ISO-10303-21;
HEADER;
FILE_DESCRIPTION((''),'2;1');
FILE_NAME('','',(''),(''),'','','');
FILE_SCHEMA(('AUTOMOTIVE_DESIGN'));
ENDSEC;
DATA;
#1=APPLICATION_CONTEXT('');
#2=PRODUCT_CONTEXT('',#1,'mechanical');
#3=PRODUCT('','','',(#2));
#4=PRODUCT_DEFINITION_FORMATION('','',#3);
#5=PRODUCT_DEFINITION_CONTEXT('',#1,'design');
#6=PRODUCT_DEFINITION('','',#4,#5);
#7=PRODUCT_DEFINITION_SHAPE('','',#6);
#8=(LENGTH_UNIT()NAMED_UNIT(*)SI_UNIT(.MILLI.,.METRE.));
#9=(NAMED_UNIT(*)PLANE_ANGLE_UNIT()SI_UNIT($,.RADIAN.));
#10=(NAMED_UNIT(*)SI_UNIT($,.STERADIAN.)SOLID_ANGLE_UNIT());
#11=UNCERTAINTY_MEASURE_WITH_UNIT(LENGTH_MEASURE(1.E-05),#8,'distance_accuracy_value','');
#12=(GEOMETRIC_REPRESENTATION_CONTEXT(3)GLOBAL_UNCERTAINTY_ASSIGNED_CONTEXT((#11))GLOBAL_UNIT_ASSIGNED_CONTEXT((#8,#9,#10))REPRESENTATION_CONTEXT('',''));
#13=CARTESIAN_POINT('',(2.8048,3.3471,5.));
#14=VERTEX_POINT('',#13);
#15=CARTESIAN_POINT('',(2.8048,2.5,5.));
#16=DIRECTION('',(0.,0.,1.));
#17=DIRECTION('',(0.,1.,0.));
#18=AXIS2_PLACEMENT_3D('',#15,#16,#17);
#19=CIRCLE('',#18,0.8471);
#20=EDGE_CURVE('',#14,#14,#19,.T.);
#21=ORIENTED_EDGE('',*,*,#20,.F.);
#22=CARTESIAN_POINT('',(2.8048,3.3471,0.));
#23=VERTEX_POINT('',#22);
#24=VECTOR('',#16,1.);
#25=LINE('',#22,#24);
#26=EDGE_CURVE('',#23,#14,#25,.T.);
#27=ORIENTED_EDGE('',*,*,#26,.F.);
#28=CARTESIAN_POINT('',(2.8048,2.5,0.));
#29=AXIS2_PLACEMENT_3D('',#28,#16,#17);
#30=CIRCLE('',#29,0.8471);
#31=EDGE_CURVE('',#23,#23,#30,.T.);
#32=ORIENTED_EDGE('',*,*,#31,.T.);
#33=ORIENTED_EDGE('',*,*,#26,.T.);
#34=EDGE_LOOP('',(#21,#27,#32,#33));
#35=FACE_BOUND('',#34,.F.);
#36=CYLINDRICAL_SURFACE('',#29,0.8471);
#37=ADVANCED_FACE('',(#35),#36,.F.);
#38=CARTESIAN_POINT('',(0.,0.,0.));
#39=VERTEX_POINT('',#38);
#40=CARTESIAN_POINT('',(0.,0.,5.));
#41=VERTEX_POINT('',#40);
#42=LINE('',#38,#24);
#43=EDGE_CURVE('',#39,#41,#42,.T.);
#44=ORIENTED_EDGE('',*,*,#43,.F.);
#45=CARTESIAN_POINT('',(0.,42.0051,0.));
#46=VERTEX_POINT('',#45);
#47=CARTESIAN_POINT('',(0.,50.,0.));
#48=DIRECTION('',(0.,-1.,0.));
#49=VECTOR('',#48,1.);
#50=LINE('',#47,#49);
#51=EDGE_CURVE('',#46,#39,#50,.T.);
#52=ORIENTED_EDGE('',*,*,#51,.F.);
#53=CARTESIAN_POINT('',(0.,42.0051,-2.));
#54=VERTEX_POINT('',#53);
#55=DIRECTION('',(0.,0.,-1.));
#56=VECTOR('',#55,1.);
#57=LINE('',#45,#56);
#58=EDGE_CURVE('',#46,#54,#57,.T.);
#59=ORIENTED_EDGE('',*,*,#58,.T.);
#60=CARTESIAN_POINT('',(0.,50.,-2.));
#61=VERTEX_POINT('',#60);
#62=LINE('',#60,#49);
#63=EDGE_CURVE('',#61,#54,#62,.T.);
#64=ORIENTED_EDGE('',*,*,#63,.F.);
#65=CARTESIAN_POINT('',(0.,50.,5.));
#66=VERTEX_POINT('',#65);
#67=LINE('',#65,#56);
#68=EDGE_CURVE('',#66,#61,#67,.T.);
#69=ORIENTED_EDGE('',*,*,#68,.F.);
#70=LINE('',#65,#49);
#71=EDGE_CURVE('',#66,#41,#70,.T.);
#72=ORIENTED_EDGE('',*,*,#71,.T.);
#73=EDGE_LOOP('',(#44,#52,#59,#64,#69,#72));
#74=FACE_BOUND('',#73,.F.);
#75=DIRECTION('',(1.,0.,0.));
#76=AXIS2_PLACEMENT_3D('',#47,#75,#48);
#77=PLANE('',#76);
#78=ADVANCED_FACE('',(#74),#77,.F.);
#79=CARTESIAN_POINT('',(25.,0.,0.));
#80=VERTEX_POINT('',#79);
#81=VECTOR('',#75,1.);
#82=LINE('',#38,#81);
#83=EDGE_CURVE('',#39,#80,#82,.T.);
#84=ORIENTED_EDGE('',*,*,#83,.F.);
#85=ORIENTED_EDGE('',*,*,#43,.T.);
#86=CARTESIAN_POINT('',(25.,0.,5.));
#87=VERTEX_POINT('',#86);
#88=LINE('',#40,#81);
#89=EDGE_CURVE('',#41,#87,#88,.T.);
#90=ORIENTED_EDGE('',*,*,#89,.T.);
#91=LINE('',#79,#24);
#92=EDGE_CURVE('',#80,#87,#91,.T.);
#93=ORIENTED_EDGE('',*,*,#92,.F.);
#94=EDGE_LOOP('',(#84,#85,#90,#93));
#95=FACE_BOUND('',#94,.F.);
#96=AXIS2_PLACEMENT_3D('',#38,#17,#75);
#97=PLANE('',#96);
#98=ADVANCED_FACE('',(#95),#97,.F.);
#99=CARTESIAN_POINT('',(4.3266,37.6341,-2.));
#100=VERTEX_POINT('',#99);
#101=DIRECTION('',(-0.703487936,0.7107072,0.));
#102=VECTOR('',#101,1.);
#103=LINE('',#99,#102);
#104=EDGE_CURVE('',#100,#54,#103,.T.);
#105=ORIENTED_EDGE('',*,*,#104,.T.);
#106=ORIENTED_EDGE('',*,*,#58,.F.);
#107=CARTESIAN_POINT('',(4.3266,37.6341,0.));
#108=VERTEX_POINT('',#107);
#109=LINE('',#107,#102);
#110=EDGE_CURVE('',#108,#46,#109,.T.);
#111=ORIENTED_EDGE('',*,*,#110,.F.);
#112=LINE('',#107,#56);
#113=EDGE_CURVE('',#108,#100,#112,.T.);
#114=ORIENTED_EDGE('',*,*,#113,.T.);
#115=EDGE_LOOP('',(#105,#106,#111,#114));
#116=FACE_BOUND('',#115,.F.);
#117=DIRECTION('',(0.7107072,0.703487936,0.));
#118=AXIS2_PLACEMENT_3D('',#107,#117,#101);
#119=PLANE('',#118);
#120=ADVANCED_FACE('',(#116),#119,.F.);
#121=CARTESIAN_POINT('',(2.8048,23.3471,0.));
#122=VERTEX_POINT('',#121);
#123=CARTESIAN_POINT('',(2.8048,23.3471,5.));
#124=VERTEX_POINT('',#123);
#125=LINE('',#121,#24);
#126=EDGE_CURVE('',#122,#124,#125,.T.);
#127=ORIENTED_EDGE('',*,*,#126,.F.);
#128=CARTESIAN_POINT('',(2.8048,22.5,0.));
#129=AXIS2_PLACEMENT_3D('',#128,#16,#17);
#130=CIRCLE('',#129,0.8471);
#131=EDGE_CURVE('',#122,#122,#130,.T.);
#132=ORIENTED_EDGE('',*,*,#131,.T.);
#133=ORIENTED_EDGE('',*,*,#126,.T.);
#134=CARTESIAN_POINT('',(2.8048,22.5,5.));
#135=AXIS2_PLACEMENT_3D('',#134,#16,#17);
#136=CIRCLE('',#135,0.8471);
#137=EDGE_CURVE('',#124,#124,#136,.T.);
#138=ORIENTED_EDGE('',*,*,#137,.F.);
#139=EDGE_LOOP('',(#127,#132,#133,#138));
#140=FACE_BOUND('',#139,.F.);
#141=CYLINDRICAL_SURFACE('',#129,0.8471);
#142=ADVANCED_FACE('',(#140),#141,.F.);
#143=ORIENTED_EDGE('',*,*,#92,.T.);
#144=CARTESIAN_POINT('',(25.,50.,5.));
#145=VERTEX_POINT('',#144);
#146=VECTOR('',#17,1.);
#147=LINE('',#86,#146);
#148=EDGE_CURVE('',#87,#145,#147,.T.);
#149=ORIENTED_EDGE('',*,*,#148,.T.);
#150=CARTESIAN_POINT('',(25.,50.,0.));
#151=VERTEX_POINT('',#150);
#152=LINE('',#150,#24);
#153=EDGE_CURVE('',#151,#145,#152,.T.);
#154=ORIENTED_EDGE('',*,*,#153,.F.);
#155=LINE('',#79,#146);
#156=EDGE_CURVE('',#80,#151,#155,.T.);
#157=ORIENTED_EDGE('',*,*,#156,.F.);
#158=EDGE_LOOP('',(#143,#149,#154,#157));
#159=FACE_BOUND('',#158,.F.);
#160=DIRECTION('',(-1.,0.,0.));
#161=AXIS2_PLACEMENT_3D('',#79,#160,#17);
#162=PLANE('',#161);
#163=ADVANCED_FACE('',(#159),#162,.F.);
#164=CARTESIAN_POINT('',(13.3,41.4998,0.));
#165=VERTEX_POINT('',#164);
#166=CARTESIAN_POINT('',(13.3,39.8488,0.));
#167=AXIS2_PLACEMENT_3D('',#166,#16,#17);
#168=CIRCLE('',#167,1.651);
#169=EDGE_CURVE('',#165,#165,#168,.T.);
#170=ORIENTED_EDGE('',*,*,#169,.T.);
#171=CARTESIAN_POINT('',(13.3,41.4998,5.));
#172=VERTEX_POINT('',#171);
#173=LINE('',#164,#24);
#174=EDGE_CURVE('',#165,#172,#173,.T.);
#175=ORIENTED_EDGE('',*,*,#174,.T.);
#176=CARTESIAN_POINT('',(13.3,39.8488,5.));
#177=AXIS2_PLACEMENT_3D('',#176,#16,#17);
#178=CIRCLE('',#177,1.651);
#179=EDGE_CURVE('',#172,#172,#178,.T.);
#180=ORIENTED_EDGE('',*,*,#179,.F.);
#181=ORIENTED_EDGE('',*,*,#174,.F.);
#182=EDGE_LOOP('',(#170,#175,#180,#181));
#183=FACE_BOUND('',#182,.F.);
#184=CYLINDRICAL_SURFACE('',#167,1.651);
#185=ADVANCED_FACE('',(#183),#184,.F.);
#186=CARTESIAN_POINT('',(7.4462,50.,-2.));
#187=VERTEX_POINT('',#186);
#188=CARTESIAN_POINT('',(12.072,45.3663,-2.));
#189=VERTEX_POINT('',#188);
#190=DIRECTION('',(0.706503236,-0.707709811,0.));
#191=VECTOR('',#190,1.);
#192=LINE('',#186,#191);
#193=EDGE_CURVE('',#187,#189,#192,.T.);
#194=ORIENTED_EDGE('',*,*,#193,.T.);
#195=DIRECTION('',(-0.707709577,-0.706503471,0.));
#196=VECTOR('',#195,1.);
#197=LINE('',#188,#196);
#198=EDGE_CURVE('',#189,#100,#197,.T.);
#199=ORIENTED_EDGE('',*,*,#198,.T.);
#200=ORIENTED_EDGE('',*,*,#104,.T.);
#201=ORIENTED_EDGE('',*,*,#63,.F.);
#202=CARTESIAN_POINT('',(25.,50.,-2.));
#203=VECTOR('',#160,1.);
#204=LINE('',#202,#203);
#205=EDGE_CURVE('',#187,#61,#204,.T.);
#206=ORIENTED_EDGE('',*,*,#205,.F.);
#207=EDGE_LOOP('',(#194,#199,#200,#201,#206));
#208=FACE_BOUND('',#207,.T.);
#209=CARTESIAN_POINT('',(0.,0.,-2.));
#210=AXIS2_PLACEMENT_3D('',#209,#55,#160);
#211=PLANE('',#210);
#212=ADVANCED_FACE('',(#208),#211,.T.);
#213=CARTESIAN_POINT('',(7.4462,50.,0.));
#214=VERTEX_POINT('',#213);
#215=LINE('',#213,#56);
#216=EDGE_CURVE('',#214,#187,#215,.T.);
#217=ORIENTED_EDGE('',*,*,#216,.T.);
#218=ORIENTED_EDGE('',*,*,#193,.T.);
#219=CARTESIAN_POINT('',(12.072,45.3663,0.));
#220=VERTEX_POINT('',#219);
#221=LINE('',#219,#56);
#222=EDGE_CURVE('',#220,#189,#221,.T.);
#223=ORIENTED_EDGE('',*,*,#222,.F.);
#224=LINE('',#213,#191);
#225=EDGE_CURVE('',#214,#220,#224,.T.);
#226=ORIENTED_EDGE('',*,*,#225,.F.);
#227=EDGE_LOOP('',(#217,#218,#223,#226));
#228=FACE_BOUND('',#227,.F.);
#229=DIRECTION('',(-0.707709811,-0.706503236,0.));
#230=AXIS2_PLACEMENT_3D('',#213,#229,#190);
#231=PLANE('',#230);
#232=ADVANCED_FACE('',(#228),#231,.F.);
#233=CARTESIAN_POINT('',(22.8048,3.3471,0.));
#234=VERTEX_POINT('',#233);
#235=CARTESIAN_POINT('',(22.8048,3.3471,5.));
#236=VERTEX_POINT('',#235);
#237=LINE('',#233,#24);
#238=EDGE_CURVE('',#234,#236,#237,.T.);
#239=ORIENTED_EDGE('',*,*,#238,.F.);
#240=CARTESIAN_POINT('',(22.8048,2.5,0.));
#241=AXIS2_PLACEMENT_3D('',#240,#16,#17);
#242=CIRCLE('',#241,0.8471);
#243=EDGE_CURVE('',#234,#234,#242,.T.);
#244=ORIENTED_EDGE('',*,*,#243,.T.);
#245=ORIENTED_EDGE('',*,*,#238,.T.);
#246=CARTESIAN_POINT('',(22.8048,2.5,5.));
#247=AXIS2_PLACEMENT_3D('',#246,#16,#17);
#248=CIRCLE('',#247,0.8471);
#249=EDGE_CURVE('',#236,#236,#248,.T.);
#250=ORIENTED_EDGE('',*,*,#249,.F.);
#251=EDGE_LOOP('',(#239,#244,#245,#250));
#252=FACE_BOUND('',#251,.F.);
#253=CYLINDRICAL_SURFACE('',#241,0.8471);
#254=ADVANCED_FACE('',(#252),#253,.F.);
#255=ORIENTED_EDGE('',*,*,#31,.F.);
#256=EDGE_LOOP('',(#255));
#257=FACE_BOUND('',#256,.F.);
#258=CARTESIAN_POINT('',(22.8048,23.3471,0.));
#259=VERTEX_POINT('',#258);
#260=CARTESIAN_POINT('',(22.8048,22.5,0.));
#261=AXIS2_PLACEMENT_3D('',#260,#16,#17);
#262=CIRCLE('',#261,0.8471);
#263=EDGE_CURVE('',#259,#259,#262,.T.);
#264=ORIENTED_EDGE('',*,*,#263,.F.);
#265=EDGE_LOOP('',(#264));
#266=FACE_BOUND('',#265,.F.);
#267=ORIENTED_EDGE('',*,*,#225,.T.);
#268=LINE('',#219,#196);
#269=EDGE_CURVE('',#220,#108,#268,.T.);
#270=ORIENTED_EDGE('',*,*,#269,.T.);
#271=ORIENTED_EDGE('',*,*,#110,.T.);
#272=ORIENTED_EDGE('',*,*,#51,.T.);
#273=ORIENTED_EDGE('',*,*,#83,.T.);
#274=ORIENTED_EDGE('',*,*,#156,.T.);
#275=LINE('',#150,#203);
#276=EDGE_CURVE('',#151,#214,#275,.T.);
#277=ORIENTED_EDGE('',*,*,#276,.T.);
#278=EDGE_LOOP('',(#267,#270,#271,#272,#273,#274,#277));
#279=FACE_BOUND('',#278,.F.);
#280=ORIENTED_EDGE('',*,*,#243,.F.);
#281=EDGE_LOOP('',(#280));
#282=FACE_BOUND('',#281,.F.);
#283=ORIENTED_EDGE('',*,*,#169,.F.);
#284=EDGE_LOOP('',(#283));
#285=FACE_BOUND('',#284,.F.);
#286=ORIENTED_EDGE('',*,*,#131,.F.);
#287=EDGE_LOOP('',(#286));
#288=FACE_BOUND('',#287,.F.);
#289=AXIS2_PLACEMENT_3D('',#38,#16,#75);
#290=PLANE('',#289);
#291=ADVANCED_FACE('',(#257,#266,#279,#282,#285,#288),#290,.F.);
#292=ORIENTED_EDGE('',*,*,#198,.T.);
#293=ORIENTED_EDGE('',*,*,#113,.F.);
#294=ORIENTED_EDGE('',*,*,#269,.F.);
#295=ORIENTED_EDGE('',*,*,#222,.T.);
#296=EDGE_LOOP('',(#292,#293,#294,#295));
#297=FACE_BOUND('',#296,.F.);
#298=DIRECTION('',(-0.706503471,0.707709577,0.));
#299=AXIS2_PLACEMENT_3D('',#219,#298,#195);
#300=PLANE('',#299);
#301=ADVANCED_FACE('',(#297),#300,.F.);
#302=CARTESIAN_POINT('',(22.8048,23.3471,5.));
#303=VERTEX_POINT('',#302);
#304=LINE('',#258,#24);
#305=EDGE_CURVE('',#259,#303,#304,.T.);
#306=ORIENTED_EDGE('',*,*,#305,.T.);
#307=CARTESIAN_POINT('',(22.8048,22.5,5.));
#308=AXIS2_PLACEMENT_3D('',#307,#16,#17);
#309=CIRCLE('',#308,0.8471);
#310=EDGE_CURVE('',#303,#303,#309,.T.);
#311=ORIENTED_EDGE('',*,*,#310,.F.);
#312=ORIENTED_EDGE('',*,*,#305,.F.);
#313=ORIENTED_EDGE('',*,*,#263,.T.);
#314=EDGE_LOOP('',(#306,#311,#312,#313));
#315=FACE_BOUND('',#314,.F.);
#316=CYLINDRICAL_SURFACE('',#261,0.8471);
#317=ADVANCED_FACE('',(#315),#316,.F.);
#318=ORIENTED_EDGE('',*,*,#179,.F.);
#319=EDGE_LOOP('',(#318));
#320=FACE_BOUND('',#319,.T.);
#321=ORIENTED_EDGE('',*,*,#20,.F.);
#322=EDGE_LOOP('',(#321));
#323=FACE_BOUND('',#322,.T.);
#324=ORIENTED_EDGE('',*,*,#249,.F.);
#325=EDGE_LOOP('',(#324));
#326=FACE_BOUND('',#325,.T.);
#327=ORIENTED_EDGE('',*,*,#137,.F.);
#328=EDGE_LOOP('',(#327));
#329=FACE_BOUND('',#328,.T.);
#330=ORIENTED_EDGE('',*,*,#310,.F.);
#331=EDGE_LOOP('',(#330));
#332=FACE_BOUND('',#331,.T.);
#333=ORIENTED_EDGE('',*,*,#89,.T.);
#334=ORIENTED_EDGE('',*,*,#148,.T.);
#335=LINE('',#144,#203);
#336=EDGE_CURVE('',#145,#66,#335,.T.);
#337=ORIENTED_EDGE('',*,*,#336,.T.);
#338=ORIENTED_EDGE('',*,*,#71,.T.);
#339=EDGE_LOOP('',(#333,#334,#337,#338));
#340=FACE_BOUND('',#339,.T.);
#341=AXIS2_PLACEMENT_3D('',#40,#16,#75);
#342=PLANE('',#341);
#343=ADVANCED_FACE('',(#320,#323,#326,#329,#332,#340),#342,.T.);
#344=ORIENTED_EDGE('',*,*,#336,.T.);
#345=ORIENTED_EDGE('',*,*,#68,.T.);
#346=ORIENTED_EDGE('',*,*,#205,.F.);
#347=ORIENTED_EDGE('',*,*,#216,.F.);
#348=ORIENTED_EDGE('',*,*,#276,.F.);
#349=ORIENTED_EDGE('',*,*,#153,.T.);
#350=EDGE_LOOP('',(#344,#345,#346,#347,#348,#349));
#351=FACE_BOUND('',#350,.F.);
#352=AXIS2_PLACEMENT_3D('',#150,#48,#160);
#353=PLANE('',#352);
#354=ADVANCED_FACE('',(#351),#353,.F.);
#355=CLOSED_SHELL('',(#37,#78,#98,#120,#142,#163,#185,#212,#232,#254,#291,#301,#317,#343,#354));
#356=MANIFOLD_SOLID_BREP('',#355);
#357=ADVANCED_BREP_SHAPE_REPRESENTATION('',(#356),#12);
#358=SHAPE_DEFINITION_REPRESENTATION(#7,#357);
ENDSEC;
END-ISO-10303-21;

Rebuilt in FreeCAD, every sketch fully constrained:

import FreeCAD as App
import Part
import Sketcher

V = App.Vector
Q = App.Units.Quantity

doc = App.newDocument("Part")
body = doc.addObject("PartDesign::Body", "Body")

# Sketch on XY plane
sketch1 = body.newObject("Sketcher::SketchObject", "Sketch")
sketch1.AttachmentSupport = (doc.getObject("XY_Plane"), [""])
sketch1.MapMode = "FlatFace"
sketch1.addGeometry([
    Part.LineSegment(V(0, 50, 0), V(0, 0, 0)),
    Part.LineSegment(V(0, 0, 0), V(25, 0, 0)),
    Part.LineSegment(V(25, 0, 0), V(25, 50, 0)),
    Part.LineSegment(V(25, 50, 0), V(0, 50, 0)),
], False)
sketch1.addConstraint([
    Sketcher.Constraint("Coincident", 0, 2, 1, 1),
    Sketcher.Constraint("Coincident", 1, 2, 2, 1),
    Sketcher.Constraint("Coincident", 2, 2, 3, 1),
    Sketcher.Constraint("Coincident", 3, 2, 0, 1),
    Sketcher.Constraint("Vertical", 0),
    Sketcher.Constraint("Horizontal", 1),
    Sketcher.Constraint("Vertical", 2),
    Sketcher.Constraint("Horizontal", 3),
    Sketcher.Constraint("Coincident", 0, 2, -1, 1),
    Sketcher.Constraint("DistanceX", 1, 1, 1, 2, 25.0),
    Sketcher.Constraint("DistanceY", 0, 2, 0, 1, 50.0),
])
pad1 = body.newObject("PartDesign::Pad", "Pad")
pad1.Profile = sketch1
pad1.Length = 5

# Sketch on XY plane
sketch2 = body.newObject("Sketcher::SketchObject", "Sketch001")
sketch2.AttachmentSupport = (doc.getObject("XY_Plane"), [""])
sketch2.MapMode = "FlatFace"
sketch2.addGeometry([
    Part.LineSegment(V(4, 38, 0), V(0, 42, 0)),  # 0
    Part.LineSegment(V(0, 42, 0), V(0, 50, 0)),  # 1
    Part.LineSegment(V(0, 50, 0), V(7, 50, 0)),  # 2
    Part.LineSegment(V(7, 50, 0), V(12, 45, 0)),  # 3
    Part.LineSegment(V(12, 45, 0), V(4, 38, 0)),  # 4
], False)
sketch2.addConstraint([
    Sketcher.Constraint("Coincident", 0, 2, 1, 1),
    Sketcher.Constraint("Coincident", 1, 2, 2, 1),
    Sketcher.Constraint("Coincident", 2, 2, 3, 1),
    Sketcher.Constraint("Coincident", 3, 2, 4, 1),
    Sketcher.Constraint("Coincident", 4, 2, 0, 1),
    Sketcher.Constraint("Vertical", 1),
    Sketcher.Constraint("Horizontal", 2),
    Sketcher.Constraint("PointOnObject", 0, 2, -2),
    Sketcher.Constraint("Perpendicular", 3, 4),
    Sketcher.Constraint("DistanceX", 2, 1, 2, 2, 7.4462),
    Sketcher.Constraint("DistanceY", -1, 1, 1, 2, 50.0),
    Sketcher.Constraint("Angle", 3, Q("-45.049 deg")),
    Sketcher.Constraint("DistanceY", 1, 1, 1, 2, 7.995),
    Sketcher.Constraint("DistanceX", -1, 1, 3, 2, 12.072),
    Sketcher.Constraint("DistanceY", -1, 1, 4, 2, 37.634),
])
pad2 = body.newObject("PartDesign::Pad", "Pad001")
pad2.Profile = sketch2
pad2.Length = 2
pad2.Reversed = True

# Sketch on XY plane
sketch3 = body.newObject("Sketcher::SketchObject", "Sketch002")
sketch3.AttachmentSupport = (doc.getObject("XY_Plane"), [""])
sketch3.MapMode = "FlatFace"
sketch3.addGeometry(Part.Circle(V(13.3, 39.8, 0), V(0, 0, 1), 1.7), False)
sketch3.addConstraint([
    Sketcher.Constraint("Diameter", 0, 3.302),
    Sketcher.Constraint("DistanceX", -1, 1, 0, 3, 13.3),
    Sketcher.Constraint("DistanceY", -1, 1, 0, 3, 39.8488),
])
doc.recompute()
hole = body.newObject("PartDesign::Hole", "Hole")
hole.Profile = sketch3
hole.ThreadType = "None"
hole.Diameter = 3.302
hole.DepthType = "ThroughAll"
hole.Reversed = True

# Sketch on XY plane
sketch4 = body.newObject("Sketcher::SketchObject", "Sketch003")
sketch4.AttachmentSupport = (doc.getObject("XY_Plane"), [""])
sketch4.MapMode = "FlatFace"
sketch4.addGeometry([
    Part.Circle(V(22.8, 22.5, 0), V(0, 0, 1), 0.8),
    Part.Circle(V(22.8, 2.5, 0), V(0, 0, 1), 0.8),
    Part.Circle(V(2.8, 22.5, 0), V(0, 0, 1), 0.8),
    Part.Circle(V(2.8, 2.5, 0), V(0, 0, 1), 0.8),
], False)
sketch4.addConstraint([
    Sketcher.Constraint("Equal", 0, 1),
    Sketcher.Constraint("Equal", 1, 2),
    Sketcher.Constraint("Equal", 2, 3),
    Sketcher.Constraint("Horizontal", 0, 3, 2, 3),
    Sketcher.Constraint("Horizontal", 1, 3, 3, 3),
    Sketcher.Constraint("Vertical", 0, 3, 1, 3),
    Sketcher.Constraint("Vertical", 2, 3, 3, 3),
    Sketcher.Constraint("DistanceY", 1, 3, 0, 3, 20.0),
    Sketcher.Constraint("DistanceX", 2, 3, 0, 3, 20.0),
    Sketcher.Constraint("Diameter", 0, 1.6942),
    Sketcher.Constraint("DistanceY", -1, 1, 0, 3, 22.5),
    Sketcher.Constraint("DistanceX", -1, 1, 0, 3, 22.8048),
])
doc.recompute()
hole2 = body.newObject("PartDesign::Hole", "Hole001")
hole2.Profile = sketch4
hole2.ThreadType = "None"
hole2.Diameter = 1.6942
hole2.DepthType = "ThroughAll"
hole2.Reversed = True

doc.recompute()
